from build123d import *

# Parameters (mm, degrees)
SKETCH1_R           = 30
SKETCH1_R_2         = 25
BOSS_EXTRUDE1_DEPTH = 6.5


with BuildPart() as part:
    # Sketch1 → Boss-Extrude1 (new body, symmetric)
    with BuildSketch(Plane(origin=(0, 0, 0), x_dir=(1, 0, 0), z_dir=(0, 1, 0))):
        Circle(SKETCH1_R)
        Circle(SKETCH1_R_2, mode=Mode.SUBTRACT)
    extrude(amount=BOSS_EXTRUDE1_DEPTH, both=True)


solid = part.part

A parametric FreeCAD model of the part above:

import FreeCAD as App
import Part
import Sketcher

doc = App.newDocument("Part")
body = doc.addObject("PartDesign::Body", "Body")

# Sketch on XZ plane
sketch1 = body.newObject("Sketcher::SketchObject", "Sketch")
sketch1.AttachmentSupport = (doc.getObject("XZ_Plane"), [""])
sketch1.MapMode = "FlatFace"
sketch1.addGeometry(Part.Circle(App.Vector(0, 0, 0), App.Vector(0, 0, 1), 30), False)
sketch1.addGeometry(Part.Circle(App.Vector(0, 0, 0), App.Vector(0, 0, 1), 25), False)
sketch1.addConstraint(Sketcher.Constraint("Coincident", 0, 3, -1, 1))
sketch1.addConstraint(Sketcher.Constraint("Coincident", 1, 3, -1, 1))
sketch1.addConstraint(Sketcher.Constraint("Diameter", 0, 60.0))
sketch1.addConstraint(Sketcher.Constraint("Diameter", 1, 50.0))
pad1 = body.newObject("PartDesign::Pad", "Pad")
pad1.Profile = sketch1
pad1.Length = 13
pad1.Midplane = True

doc.recompute()
